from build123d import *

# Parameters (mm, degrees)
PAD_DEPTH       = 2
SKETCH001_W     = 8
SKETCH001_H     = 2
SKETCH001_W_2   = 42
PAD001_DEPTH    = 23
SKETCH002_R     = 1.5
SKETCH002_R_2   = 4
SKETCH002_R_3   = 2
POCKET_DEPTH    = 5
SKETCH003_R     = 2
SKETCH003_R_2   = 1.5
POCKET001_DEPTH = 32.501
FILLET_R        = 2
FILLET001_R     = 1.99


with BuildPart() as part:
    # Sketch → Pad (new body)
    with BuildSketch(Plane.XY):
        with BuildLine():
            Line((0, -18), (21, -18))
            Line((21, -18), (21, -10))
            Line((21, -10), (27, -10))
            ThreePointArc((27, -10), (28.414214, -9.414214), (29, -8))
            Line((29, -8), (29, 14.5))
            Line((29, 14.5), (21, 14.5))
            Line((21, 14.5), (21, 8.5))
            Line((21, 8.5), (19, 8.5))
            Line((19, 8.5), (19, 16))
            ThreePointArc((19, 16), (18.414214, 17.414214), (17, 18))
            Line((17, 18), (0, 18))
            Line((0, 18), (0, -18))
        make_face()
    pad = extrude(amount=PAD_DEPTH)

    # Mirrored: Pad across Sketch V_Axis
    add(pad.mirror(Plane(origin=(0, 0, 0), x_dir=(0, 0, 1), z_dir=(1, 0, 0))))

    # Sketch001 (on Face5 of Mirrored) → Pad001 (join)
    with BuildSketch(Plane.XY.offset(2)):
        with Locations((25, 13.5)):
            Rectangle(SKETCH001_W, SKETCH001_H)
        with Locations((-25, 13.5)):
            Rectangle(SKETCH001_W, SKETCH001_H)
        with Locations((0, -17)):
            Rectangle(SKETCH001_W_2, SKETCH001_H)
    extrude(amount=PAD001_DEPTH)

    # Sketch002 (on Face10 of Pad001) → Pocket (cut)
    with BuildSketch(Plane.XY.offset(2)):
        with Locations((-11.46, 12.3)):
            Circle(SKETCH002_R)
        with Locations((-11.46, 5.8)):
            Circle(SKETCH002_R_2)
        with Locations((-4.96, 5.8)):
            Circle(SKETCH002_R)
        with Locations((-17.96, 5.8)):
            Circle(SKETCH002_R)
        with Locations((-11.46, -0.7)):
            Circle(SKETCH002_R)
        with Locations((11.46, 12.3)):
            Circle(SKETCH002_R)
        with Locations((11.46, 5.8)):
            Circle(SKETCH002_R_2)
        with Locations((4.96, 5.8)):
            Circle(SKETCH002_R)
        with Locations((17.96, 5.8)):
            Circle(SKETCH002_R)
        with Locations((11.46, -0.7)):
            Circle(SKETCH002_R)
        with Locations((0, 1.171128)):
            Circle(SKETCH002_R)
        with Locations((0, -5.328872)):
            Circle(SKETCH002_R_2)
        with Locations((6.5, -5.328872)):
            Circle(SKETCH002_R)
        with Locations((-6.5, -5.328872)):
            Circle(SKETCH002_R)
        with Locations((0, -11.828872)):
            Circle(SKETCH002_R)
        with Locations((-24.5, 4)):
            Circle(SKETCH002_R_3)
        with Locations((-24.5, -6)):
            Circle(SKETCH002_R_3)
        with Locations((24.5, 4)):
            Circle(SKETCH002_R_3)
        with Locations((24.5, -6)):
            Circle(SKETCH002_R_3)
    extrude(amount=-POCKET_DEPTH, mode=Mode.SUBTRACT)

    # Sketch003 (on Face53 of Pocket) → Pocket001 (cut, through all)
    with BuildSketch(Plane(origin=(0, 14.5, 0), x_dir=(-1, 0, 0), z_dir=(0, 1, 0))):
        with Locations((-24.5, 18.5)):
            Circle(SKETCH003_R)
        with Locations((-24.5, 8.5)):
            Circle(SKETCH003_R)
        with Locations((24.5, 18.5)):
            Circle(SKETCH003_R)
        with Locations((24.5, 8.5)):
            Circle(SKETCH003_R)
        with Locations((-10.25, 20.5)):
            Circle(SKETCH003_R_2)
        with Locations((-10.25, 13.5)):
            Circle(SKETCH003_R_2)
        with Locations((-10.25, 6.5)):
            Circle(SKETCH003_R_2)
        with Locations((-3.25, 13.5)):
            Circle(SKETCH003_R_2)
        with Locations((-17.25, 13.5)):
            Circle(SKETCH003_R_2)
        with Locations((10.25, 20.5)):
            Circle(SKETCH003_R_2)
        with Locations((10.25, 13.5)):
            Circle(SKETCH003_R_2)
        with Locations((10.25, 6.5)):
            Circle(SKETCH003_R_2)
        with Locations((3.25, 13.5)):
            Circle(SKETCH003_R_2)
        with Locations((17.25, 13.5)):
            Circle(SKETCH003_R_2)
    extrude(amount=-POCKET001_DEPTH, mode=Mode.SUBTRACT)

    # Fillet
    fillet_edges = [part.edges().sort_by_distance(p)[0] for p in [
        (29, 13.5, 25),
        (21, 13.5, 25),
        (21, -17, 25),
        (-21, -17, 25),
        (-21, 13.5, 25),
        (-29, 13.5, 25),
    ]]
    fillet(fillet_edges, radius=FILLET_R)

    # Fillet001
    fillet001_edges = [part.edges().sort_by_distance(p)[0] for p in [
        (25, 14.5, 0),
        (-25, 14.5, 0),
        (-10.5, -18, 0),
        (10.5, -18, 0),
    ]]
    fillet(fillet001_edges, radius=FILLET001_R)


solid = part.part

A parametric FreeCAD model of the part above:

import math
import FreeCAD as App
import Part
import Sketcher
from FreeCAD import Vector


def edges_at(feature, points):
    """Names of the edges that pass closest to the given points."""
    edges = feature.Shape.Edges
    near = lambda p: min(range(len(edges)), key=lambda i: edges[i].distToShape(Part.Vertex(*p))[0])
    return sorted({f"Edge{near(p) + 1}" for p in points})

doc = App.newDocument("Part")
params = doc.addObject("Spreadsheet::Sheet", "Params")
for row, (alias, value) in enumerate([
    ("sketch1_radius", "1.999999 mm"),
    ("sketch1_width", "21 mm"),
    ("sketch1_width2", "6 mm"),
    ("sketch1_width3", "2 mm"),
    ("sketch1_height", "36 mm"),
    ("pad1_length", "2 mm"),
    ("sketch2_width", "8 mm"),
    ("sketch2_width2", "42 mm"),
    ("sketch2_height", "2 mm"),
    ("pad2_length", "23 mm"),
    ("sketch3_diameter", "3 mm"),
    ("sketch3_diameter2", "8 mm"),
    ("sketch3_diameter3", "4 mm"),
    ("pocket1_length", "5 mm"),
    ("sketch4_diameter", "4 mm"),
    ("sketch4_diameter2", "3 mm"),
    ("fillet_radius", "2 mm"),
    ("fillet2_radius", "1.99 mm"),
], start=1):
    params.set(f"A{row}", alias)
    params.set(f"B{row}", "=" + value)
    params.setAlias(f"B{row}", alias)

body = doc.addObject("PartDesign::Body", "Body")

sketch1 = doc.addObject("Sketcher::SketchObject", "Sketch")
body.addObject(sketch1)
sketch1.AttachmentSupport = (doc.XY_Plane, [""])
sketch1.MapMode = "FlatFace"
sketch1.addGeometry(Part.LineSegment(Vector(0, -18, 0), Vector(21, -18, 0)), False)
sketch1.addGeometry(Part.LineSegment(Vector(21, -18, 0), Vector(21, -10, 0)), False)
sketch1.addGeometry(Part.LineSegment(Vector(21, -10, 0), Vector(27, -10, 0)), False)
sketch1.addGeometry(Part.ArcOfCircle(Part.Circle(Vector(27, -8, 0), Vector(0, 0, 1), 2), math.radians(-90), math.radians(0)), False)
sketch1.addGeometry(Part.LineSegment(Vector(29, -8, 0), Vector(29, 14.5, 0)), False)
sketch1.addGeometry(Part.LineSegment(Vector(29, 14.5, 0), Vector(21, 14.5, 0)), False)
sketch1.addGeometry(Part.LineSegment(Vector(21, 14.5, 0), Vector(21, 8.5, 0)), False)
sketch1.addGeometry(Part.LineSegment(Vector(21, 8.5, 0), Vector(19, 8.5, 0)), False)
sketch1.addGeometry(Part.LineSegment(Vector(19, 8.5, 0), Vector(19, 16, 0)), False)
sketch1.addGeometry(Part.ArcOfCircle(Part.Circle(Vector(17, 16, 0), Vector(0, 0, 1), 2), math.radians(0), math.radians(90)), False)
sketch1.addGeometry(Part.LineSegment(Vector(17, 18, 0), Vector(0, 18, 0)), False)
sketch1.addGeometry(Part.LineSegment(Vector(0, 18, 0), Vector(0, -18, 0)), False)
sketch1.addConstraint(Sketcher.Constraint("Coincident", 0, 2, 1, 1))
sketch1.addConstraint(Sketcher.Constraint("Coincident", 1, 2, 2, 1))
sketch1.addConstraint(Sketcher.Constraint("Tangent", 2, 2, 3, 1))
sketch1.addConstraint(Sketcher.Constraint("Tangent", 3, 2, 4, 1))
sketch1.addConstraint(Sketcher.Constraint("Coincident", 4, 2, 5, 1))
sketch1.addConstraint(Sketcher.Constraint("Coincident", 5, 2, 6, 1))
sketch1.addConstraint(Sketcher.Constraint("Coincident", 6, 2, 7, 1))
sketch1.addConstraint(Sketcher.Constraint("Coincident", 7, 2, 8, 1))
sketch1.addConstraint(Sketcher.Constraint("Tangent", 8, 2, 9, 1))
sketch1.addConstraint(Sketcher.Constraint("Tangent", 9, 2, 10, 1))
sketch1.addConstraint(Sketcher.Constraint("Coincident", 10, 2, 11, 1))
sketch1.addConstraint(Sketcher.Constraint("Coincident", 11, 2, 0, 1))
sketch1.addConstraint(Sketcher.Constraint("Horizontal", 0))
sketch1.addConstraint(Sketcher.Constraint("Vertical", 1))
sketch1.addConstraint(Sketcher.Constraint("Horizontal", 2))
sketch1.addConstraint(Sketcher.Constraint("Vertical", 4))
sketch1.addConstraint(Sketcher.Constraint("Horizontal", 5))
sketch1.addConstraint(Sketcher.Constraint("Vertical", 6))
sketch1.addConstraint(Sketcher.Constraint("Horizontal", 7))
sketch1.addConstraint(Sketcher.Constraint("Vertical", 8))
sketch1.addConstraint(Sketcher.Constraint("Horizontal", 10))
sketch1.addConstraint(Sketcher.Constraint("Vertical", 11))
sketch1.addConstraint(Sketcher.Constraint("Equal", 3, 9))
sketch1.addConstraint(Sketcher.Constraint("Symmetric", 10, 2, 11, 2, -1, 1))
sketch1.addConstraint(Sketcher.Constraint("Vertical", 1, 2, 5, 2))
sketch1.addConstraint(Sketcher.Constraint("Equal", 5, 1))
sketch1.addConstraint(Sketcher.Constraint("Equal", 2, 6))
sketch1.addConstraint(Sketcher.Constraint("Radius", 3, 1.999999))
sketch1.addConstraint(Sketcher.Constraint("DistanceX", 0, 1, 0, 2, 21.0))
sketch1.addConstraint(Sketcher.Constraint("DistanceX", 2, 1, 2, 2, 6.0))
sketch1.addConstraint(Sketcher.Constraint("DistanceX", 7, 2, 7, 1, 2.0))
sketch1.addConstraint(Sketcher.Constraint("DistanceY", 11, 2, 11, 1, 36.0))
sketch1.addConstraint(Sketcher.Constraint("DistanceY", 4, 1, 4, 2, 22.5))
sketch1.setExpression("Constraints[27]", "Params.sketch1_radius")
sketch1.setExpression("Constraints[28]", "Params.sketch1_width")
sketch1.setExpression("Constraints[29]", "Params.sketch1_width2")
sketch1.setExpression("Constraints[30]", "Params.sketch1_width3")
sketch1.setExpression("Constraints[31]", "Params.sketch1_height")
pad1 = doc.addObject("PartDesign::Pad", "Pad")
body.addObject(pad1)
pad1.Profile = sketch1
pad1.setExpression("Length", "Params.pad1_length")
doc.recompute()

mirrored = doc.addObject("PartDesign::Mirrored", "Mirrored")
body.addObject(mirrored)
mirrored.Originals = [pad1]
mirrored.MirrorPlane = (doc.YZ_Plane, [""])
body.Tip = mirrored

sketch2 = doc.addObject("Sketcher::SketchObject", "Sketch001")
body.addObject(sketch2)
sketch2.AttachmentSupport = (doc.XY_Plane, [""])
sketch2.MapMode = "FlatFace"
sketch2.AttachmentOffset = App.Placement(Vector(0, 0, 2), App.Rotation())
sketch2.addGeometry(Part.LineSegment(Vector(21, 14.5, 0), Vector(21, 12.5, 0)), False)
sketch2.addGeometry(Part.LineSegment(Vector(21, 12.5, 0), Vector(29, 12.5, 0)), False)
sketch2.addGeometry(Part.LineSegment(Vector(29, 12.5, 0), Vector(29, 14.5, 0)), False)
sketch2.addGeometry(Part.LineSegment(Vector(29, 14.5, 0), Vector(21, 14.5, 0)), False)
sketch2.addGeometry(Part.LineSegment(Vector(-29, 14.5, 0), Vector(-29, 12.5, 0)), False)
sketch2.addGeometry(Part.LineSegment(Vector(-29, 12.5, 0), Vector(-21, 12.5, 0)), False)
sketch2.addGeometry(Part.LineSegment(Vector(-21, 12.5, 0), Vector(-21, 14.5, 0)), False)
sketch2.addGeometry(Part.LineSegment(Vector(-21, 14.5, 0), Vector(-29, 14.5, 0)), False)
sketch2.addGeometry(Part.LineSegment(Vector(-21, -16, 0), Vector(-21, -18, 0)), False)
sketch2.addGeometry(Part.LineSegment(Vector(-21, -18, 0), Vector(21, -18, 0)), False)
sketch2.addGeometry(Part.LineSegment(Vector(21, -18, 0), Vector(21, -16, 0)), False)
sketch2.addGeometry(Part.LineSegment(Vector(21, -16, 0), Vector(-21, -16, 0)), False)
sketch2.addConstraint(Sketcher.Constraint("Coincident", 0, 2, 1, 1))
sketch2.addConstraint(Sketcher.Constraint("Coincident", 1, 2, 2, 1))
sketch2.addConstraint(Sketcher.Constraint("Coincident", 2, 2, 3, 1))
sketch2.addConstraint(Sketcher.Constraint("Coincident", 3, 2, 0, 1))
sketch2.addConstraint(Sketcher.Constraint("Coincident", 4, 2, 5, 1))
sketch2.addConstraint(Sketcher.Constraint("Coincident", 5, 2, 6, 1))
sketch2.addConstraint(Sketcher.Constraint("Coincident", 6, 2, 7, 1))
sketch2.addConstraint(Sketcher.Constraint("Coincident", 7, 2, 4, 1))
sketch2.addConstraint(Sketcher.Constraint("Coincident", 8, 2, 9, 1))
sketch2.addConstraint(Sketcher.Constraint("Coincident", 9, 2, 10, 1))
sketch2.addConstraint(Sketcher.Constraint("Coincident", 10, 2, 11, 1))
sketch2.addConstraint(Sketcher.Constraint("Coincident", 11, 2, 8, 1))
sketch2.addConstraint(Sketcher.Constraint("Vertical", 0))
sketch2.addConstraint(Sketcher.Constraint("Horizontal", 1))
sketch2.addConstraint(Sketcher.Constraint("Vertical", 2))
sketch2.addConstraint(Sketcher.Constraint("Horizontal", 3))
sketch2.addConstraint(Sketcher.Constraint("Vertical", 4))
sketch2.addConstraint(Sketcher.Constraint("Horizontal", 5))
sketch2.addConstraint(Sketcher.Constraint("Vertical", 6))
sketch2.addConstraint(Sketcher.Constraint("Horizontal", 7))
sketch2.addConstraint(Sketcher.Constraint("Vertical", 8))
sketch2.addConstraint(Sketcher.Constraint("Horizontal", 9))
sketch2.addConstraint(Sketcher.Constraint("Vertical", 10))
sketch2.addConstraint(Sketcher.Constraint("Horizontal", 11))
sketch2.addConstraint(Sketcher.Constraint("Symmetric", 1, 2, 4, 2, -2))
sketch2.addConstraint(Sketcher.Constraint("Symmetric", 3, 2, 6, 2, -2))
sketch2.addConstraint(Sketcher.Constraint("Vertical", 6, 2, 8, 2))
sketch2.addConstraint(Sketcher.Constraint("Vertical", 3, 2, 9, 2))
sketch2.addConstraint(Sketcher.Constraint("Equal", 6, 8))
sketch2.addConstraint(Sketcher.Constraint("DistanceX", 1, 1, 1, 2, 8.0))
sketch2.addConstraint(Sketcher.Constraint("DistanceX", 9, 1, 9, 2, 42.0))
sketch2.addConstraint(Sketcher.Constraint("DistanceY", 0, 2, 0, 1, 2.0))
sketch2.addConstraint(Sketcher.Constraint("DistanceY", 8, 2, -1, 1, 18.0))
sketch2.addConstraint(Sketcher.Constraint("DistanceY", -1, 1, 0, 2, 12.5))
sketch2.setExpression("Constraints[29]", "Params.sketch2_width")
sketch2.setExpression("Constraints[30]", "Params.sketch2_width2")
sketch2.setExpression("Constraints[31]", "Params.sketch2_height")
pad2 = doc.addObject("PartDesign::Pad", "Pad001")
body.addObject(pad2)
pad2.Profile = sketch2
pad2.setExpression("Length", "Params.pad2_length")

sketch3 = doc.addObject("Sketcher::SketchObject", "Sketch002")
body.addObject(sketch3)
sketch3.AttachmentSupport = (doc.XY_Plane, [""])
sketch3.MapMode = "FlatFace"
sketch3.AttachmentOffset = App.Placement(Vector(0, 0, 2), App.Rotation())
sketch3.addGeometry(Part.Circle(Vector(-11.5, 12.3, 0), Vector(0, 0, 1), 1.5), False)
sketch3.addGeometry(Part.Circle(Vector(-11.5, 5.8, 0), Vector(0, 0, 1), 4), False)
sketch3.addGeometry(Part.Circle(Vector(-5, 5.8, 0), Vector(0, 0, 1), 1.5), False)
sketch3.addGeometry(Part.Circle(Vector(-18, 5.8, 0), Vector(0, 0, 1), 1.5), False)
sketch3.addGeometry(Part.Circle(Vector(-11.5, -0.7, 0), Vector(0, 0, 1), 1.5), False)
sketch3.addGeometry(Part.Circle(Vector(11.5, 12.3, 0), Vector(0, 0, 1), 1.5), False)
sketch3.addGeometry(Part.Circle(Vector(11.5, 5.8, 0), Vector(0, 0, 1), 4), False)
sketch3.addGeometry(Part.Circle(Vector(5, 5.8, 0), Vector(0, 0, 1), 1.5), False)
sketch3.addGeometry(Part.Circle(Vector(18, 5.8, 0), Vector(0, 0, 1), 1.5), False)
sketch3.addGeometry(Part.Circle(Vector(11.5, -0.7, 0), Vector(0, 0, 1), 1.5), False)
sketch3.addGeometry(Part.Circle(Vector(0, 1.2, 0), Vector(0, 0, 1), 1.5), False)
sketch3.addGeometry(Part.Circle(Vector(0, -5.3, 0), Vector(0, 0, 1), 4), False)
sketch3.addGeometry(Part.Circle(Vector(6.5, -5.3, 0), Vector(0, 0, 1), 1.5), False)
sketch3.addGeometry(Part.Circle(Vector(-6.5, -5.3, 0), Vector(0, 0, 1), 1.5), False)
sketch3.addGeometry(Part.Circle(Vector(0, -11.8, 0), Vector(0, 0, 1), 1.5), False)
sketch3.addGeometry(Part.Circle(Vector(-24.5, 4, 0), Vector(0, 0, 1), 2), False)
sketch3.addGeometry(Part.Circle(Vector(-24.5, -6, 0), Vector(0, 0, 1), 2), False)
sketch3.addGeometry(Part.Circle(Vector(24.5, 4, 0), Vector(0, 0, 1), 2), False)
sketch3.addGeometry(Part.Circle(Vector(24.5, -6, 0), Vector(0, 0, 1), 2), False)
sketch3.addConstraint(Sketcher.Constraint("Equal", 0, 2))
sketch3.addConstraint(Sketcher.Constraint("Equal", 2, 3))
sketch3.addConstraint(Sketcher.Constraint("Equal", 3, 4))
sketch3.addConstraint(Sketcher.Constraint("Equal", 4, 5))
sketch3.addConstraint(Sketcher.Constraint("Equal", 1, 6))
sketch3.addConstraint(Sketcher.Constraint("Equal", 5, 7))
sketch3.addConstraint(Sketcher.Constraint("Equal", 7, 8))
sketch3.addConstraint(Sketcher.Constraint("Equal", 8, 9))
sketch3.addConstraint(Sketcher.Constraint("Equal", 9, 10))
sketch3.addConstraint(Sketcher.Constraint("Equal", 6, 11))
sketch3.addConstraint(Sketcher.Constraint("Equal", 10, 12))
sketch3.addConstraint(Sketcher.Constraint("Equal", 12, 13))
sketch3.addConstraint(Sketcher.Constraint("Equal", 13, 14))
sketch3.addConstraint(Sketcher.Constraint("Equal", 15, 16))
sketch3.addConstraint(Sketcher.Constraint("Equal", 16, 17))
sketch3.addConstraint(Sketcher.Constraint("Equal", 17, 18))
sketch3.addConstraint(Sketcher.Constraint("Symmetric", 0, 3, 5, 3, -2))
sketch3.addConstraint(Sketcher.Constraint("Symmetric", 1, 3, 6, 3, -2))
sketch3.addConstraint(Sketcher.Constraint("Symmetric", 2, 3, 7, 3, -2))
sketch3.addConstraint(Sketcher.Constraint("Symmetric", 3, 3, 8, 3, -2))
sketch3.addConstraint(Sketcher.Constraint("Symmetric", 4, 3, 9, 3, -2))
sketch3.addConstraint(Sketcher.Constraint("Symmetric", 12, 3, 13, 3, -2))
sketch3.addConstraint(Sketcher.Constraint("Symmetric", 15, 3, 17, 3, -2))
sketch3.addConstraint(Sketcher.Constraint("Symmetric", 16, 3, 18, 3, -2))
sketch3.addConstraint(Sketcher.Constraint("PointOnObject", 10, 3, -2))
sketch3.addConstraint(Sketcher.Constraint("PointOnObject", 11, 3, -2))
sketch3.addConstraint(Sketcher.Constraint("PointOnObject", 14, 3, -2))
sketch3.addConstraint(Sketcher.Constraint("Horizontal", 1, 3, 2, 3))
sketch3.addConstraint(Sketcher.Constraint("Horizontal", 2, 3, 3, 3))
sketch3.addConstraint(Sketcher.Constraint("Horizontal", 11, 3, 12, 3))
sketch3.addConstraint(Sketcher.Constraint("Vertical", 0, 3, 1, 3))
sketch3.addConstraint(Sketcher.Constraint("Vertical", 1, 3, 4, 3))
sketch3.addConstraint(Sketcher.Constraint("Vertical", 15, 3, 16, 3))
sketch3.addConstraint(Sketcher.Constraint("Diameter", 0, 3.0))
sketch3.addConstraint(Sketcher.Constraint("Diameter", 1, 8.0))
sketch3.addConstraint(Sketcher.Constraint("Diameter", 15, 4.0))
sketch3.addConstraint(Sketcher.Constraint("DistanceY", -1, 1, 15, 3, 4.0))
sketch3.addConstraint(Sketcher.Constraint("DistanceY", 16, 3, -1, 1, 6.0))
sketch3.addConstraint(Sketcher.Constraint("DistanceX", 3, 3, 2, 3, 13.0))
sketch3.addConstraint(Sketcher.Constraint("DistanceY", 4, 3, 0, 3, 13.0))
sketch3.addConstraint(Sketcher.Constraint("DistanceY", 14, 3, 10, 3, 13.0))
sketch3.addConstraint(Sketcher.Constraint("DistanceX", 16, 3, 13, 3, 18.0))
sketch3.addConstraint(Sketcher.Constraint("DistanceY", -1, 1, 0, 3, 12.3))
sketch3.addConstraint(Sketcher.Constraint("DistanceY", -1, 1, 1, 3, 5.8))
sketch3.addConstraint(Sketcher.Constraint("DistanceX", -1, 1, 12, 3, 6.5))
sketch3.addConstraint(Sketcher.Constraint("DistanceX", 1, 3, 2, 3, 6.5))
sketch3.addConstraint(Sketcher.Constraint("DistanceY", 11, 3, 10, 3, 6.5))
sketch3.addConstraint(Sketcher.Constraint("DistanceX", 0, 3, -1, 1, 11.46))
sketch3.addConstraint(Sketcher.Constraint("DistanceY", 11, 3, -1, 1, 5.328872))
sketch3.setExpression("Constraints[33]", "Params.sketch3_diameter")
sketch3.setExpression("Constraints[34]", "Params.sketch3_diameter2")
sketch3.setExpression("Constraints[35]", "Params.sketch3_diameter3")
pocket1 = doc.addObject("PartDesign::Pocket", "Pocket")
body.addObject(pocket1)
pocket1.Profile = sketch3
pocket1.setExpression("Length", "Params.pocket1_length")

sketch4 = doc.addObject("Sketcher::SketchObject", "Sketch003")
body.addObject(sketch4)
sketch4.AttachmentSupport = (doc.XZ_Plane, [""])
sketch4.MapMode = "FlatFace"
sketch4.AttachmentOffset = App.Placement(Vector(0, 0, -14.5), App.Rotation())
sketch4.addGeometry(Part.Circle(Vector(24.5, 18.5, 0), Vector(0, 0, 1), 2), False)
sketch4.addGeometry(Part.Circle(Vector(24.5, 8.5, 0), Vector(0, 0, 1), 2), False)
sketch4.addGeometry(Part.Circle(Vector(-24.5, 18.5, 0), Vector(0, 0, 1), 2), False)
sketch4.addGeometry(Part.Circle(Vector(-24.5, 8.5, 0), Vector(0, 0, 1), 2), False)
sketch4.addGeometry(Part.Circle(Vector(10.2, 20.5, 0), Vector(0, 0, 1), 1.5), False)
sketch4.addGeometry(Part.Circle(Vector(10.2, 13.5, 0), Vector(0, 0, 1), 1.5), False)
sketch4.addGeometry(Part.Circle(Vector(10.2, 6.5, 0), Vector(0, 0, 1), 1.5), False)
sketch4.addGeometry(Part.Circle(Vector(3.2, 13.5, 0), Vector(0, 0, 1), 1.5), False)
sketch4.addGeometry(Part.Circle(Vector(17.2, 13.5, 0), Vector(0, 0, 1), 1.5), False)
sketch4.addGeometry(Part.Circle(Vector(-10.2, 20.5, 0), Vector(0, 0, 1), 1.5), False)
sketch4.addGeometry(Part.Circle(Vector(-10.2, 13.5, 0), Vector(0, 0, 1), 1.5), False)
sketch4.addGeometry(Part.Circle(Vector(-10.2, 6.5, 0), Vector(0, 0, 1), 1.5), False)
sketch4.addGeometry(Part.Circle(Vector(-3.2, 13.5, 0), Vector(0, 0, 1), 1.5), False)
sketch4.addGeometry(Part.Circle(Vector(-17.2, 13.5, 0), Vector(0, 0, 1), 1.5), False)
sketch4.addConstraint(Sketcher.Constraint("Equal", 0, 1))
sketch4.addConstraint(Sketcher.Constraint("Equal", 1, 2))
sketch4.addConstraint(Sketcher.Constraint("Equal", 2, 3))
sketch4.addConstraint(Sketcher.Constraint("Equal", 4, 5))
sketch4.addConstraint(Sketcher.Constraint("Equal", 5, 6))
sketch4.addConstraint(Sketcher.Constraint("Equal", 6, 7))
sketch4.addConstraint(Sketcher.Constraint("Equal", 7, 8))
sketch4.addConstraint(Sketcher.Constraint("Equal", 8, 9))
sketch4.addConstraint(Sketcher.Constraint("Equal", 9, 10))
sketch4.addConstraint(Sketcher.Constraint("Equal", 10, 11))
sketch4.addConstraint(Sketcher.Constraint("Equal", 11, 12))
sketch4.addConstraint(Sketcher.Constraint("Equal", 12, 13))
sketch4.addConstraint(Sketcher.Constraint("Symmetric", 0, 3, 2, 3, -2))
sketch4.addConstraint(Sketcher.Constraint("Symmetric", 1, 3, 3, 3, -2))
sketch4.addConstraint(Sketcher.Constraint("Symmetric", 4, 3, 9, 3, -2))
sketch4.addConstraint(Sketcher.Constraint("Symmetric", 5, 3, 10, 3, -2))
sketch4.addConstraint(Sketcher.Constraint("Symmetric", 6, 3, 11, 3, -2))
sketch4.addConstraint(Sketcher.Constraint("Symmetric", 7, 3, 12, 3, -2))
sketch4.addConstraint(Sketcher.Constraint("Symmetric", 8, 3, 13, 3, -2))
sketch4.addConstraint(Sketcher.Constraint("Horizontal", 5, 3, 7, 3))
sketch4.addConstraint(Sketcher.Constraint("Horizontal", 7, 3, 8, 3))
sketch4.addConstraint(Sketcher.Constraint("Vertical", 0, 3, 1, 3))
sketch4.addConstraint(Sketcher.Constraint("Vertical", 4, 3, 5, 3))
sketch4.addConstraint(Sketcher.Constraint("Vertical", 5, 3, 6, 3))
sketch4.addConstraint(Sketcher.Constraint("Diameter", 0, 4.0))
sketch4.addConstraint(Sketcher.Constraint("Diameter", 4, 3.0))
sketch4.addConstraint(Sketcher.Constraint("DistanceY", 1, 3, 0, 3, 10.0))
sketch4.addConstraint(Sketcher.Constraint("DistanceX", 2, 3, 0, 3, 49.0))
sketch4.addConstraint(Sketcher.Constraint("DistanceY", 0, 3, 4, 3, 2.0))
sketch4.addConstraint(Sketcher.Constraint("DistanceY", 5, 3, 4, 3, 7.0))
sketch4.addConstraint(Sketcher.Constraint("DistanceY", 6, 3, 5, 3, 7.0))
sketch4.addConstraint(Sketcher.Constraint("DistanceX", 7, 3, 5, 3, 7.0))
sketch4.addConstraint(Sketcher.Constraint("DistanceX", 5, 3, 8, 3, 7.0))
sketch4.addConstraint(Sketcher.Constraint("DistanceY", -1, 1, 0, 3, 18.5))
sketch4.addConstraint(Sketcher.Constraint("DistanceX", 9, 3, 7, 3, 13.5))
sketch4.setExpression("Constraints[24]", "Params.sketch4_diameter")
sketch4.setExpression("Constraints[25]", "Params.sketch4_diameter2")
pocket2 = doc.addObject("PartDesign::Pocket", "Pocket001")
body.addObject(pocket2)
pocket2.Profile = sketch4
pocket2.Type = "ThroughAll"
pocket2.Reversed = True
doc.recompute()

fillet = doc.addObject("PartDesign::Fillet", "Fillet")
body.addObject(fillet)
fillet.Base = (pocket2, edges_at(pocket2, [
    (29, 13.5, 25),
    (21, 13.5, 25),
    (21, -17, 25),
    (-21, -17, 25),
    (-21, 13.5, 25),
    (-29, 13.5, 25),
]))
fillet.setExpression("Radius", "Params.fillet_radius")
doc.recompute()

fillet2 = doc.addObject("PartDesign::Fillet", "Fillet001")
body.addObject(fillet2)
fillet2.Base = (fillet, edges_at(fillet, [
    (25, 14.5, 0),
    (-25, 14.5, 0),
    (0, -18, 0),
    (0, -18, 0),
]))
fillet2.setExpression("Radius", "Params.fillet2_radius")

doc.recompute()
